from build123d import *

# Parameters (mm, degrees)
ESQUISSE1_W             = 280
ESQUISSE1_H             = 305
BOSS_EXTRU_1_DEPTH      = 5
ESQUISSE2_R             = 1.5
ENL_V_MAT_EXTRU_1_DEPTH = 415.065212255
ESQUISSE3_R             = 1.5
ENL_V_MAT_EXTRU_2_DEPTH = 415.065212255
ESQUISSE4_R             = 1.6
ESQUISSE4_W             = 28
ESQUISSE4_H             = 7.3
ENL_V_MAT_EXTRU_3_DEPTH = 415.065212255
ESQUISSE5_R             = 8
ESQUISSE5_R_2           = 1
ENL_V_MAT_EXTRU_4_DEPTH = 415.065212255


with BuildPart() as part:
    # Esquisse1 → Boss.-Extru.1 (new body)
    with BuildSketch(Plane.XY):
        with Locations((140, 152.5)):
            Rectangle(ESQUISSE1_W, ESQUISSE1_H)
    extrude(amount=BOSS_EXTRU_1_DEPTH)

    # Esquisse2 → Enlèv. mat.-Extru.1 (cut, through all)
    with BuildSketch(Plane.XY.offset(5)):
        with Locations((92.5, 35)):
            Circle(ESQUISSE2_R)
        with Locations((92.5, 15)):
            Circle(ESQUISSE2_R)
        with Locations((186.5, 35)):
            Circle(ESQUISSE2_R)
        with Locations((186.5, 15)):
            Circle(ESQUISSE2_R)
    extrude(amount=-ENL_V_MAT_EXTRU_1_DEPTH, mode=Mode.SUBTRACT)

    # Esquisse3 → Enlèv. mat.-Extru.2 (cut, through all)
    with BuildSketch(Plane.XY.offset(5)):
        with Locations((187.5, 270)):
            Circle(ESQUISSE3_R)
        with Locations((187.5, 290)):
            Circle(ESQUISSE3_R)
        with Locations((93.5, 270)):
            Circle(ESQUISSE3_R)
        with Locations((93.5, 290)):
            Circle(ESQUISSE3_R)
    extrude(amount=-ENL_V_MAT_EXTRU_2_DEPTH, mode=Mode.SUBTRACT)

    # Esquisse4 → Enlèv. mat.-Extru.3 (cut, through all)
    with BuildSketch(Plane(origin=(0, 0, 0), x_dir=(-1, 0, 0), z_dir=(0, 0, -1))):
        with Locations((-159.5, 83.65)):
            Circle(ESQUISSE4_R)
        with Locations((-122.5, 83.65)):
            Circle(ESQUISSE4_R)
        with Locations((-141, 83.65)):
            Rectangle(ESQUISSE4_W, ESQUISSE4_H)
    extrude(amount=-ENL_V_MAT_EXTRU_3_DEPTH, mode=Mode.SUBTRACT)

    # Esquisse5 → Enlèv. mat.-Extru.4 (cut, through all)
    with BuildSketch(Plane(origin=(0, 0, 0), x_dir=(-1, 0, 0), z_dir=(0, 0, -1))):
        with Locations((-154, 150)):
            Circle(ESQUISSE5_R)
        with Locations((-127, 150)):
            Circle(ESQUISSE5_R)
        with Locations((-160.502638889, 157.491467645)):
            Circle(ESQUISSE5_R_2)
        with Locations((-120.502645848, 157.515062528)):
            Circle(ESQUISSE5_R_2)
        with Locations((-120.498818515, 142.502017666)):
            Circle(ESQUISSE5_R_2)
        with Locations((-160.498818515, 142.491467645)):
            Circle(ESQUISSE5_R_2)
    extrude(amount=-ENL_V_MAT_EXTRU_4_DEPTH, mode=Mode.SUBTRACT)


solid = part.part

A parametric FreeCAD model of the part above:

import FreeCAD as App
import Part
import Sketcher
from FreeCAD import Vector
Q = App.Units.Quantity

doc = App.newDocument("Part")
params = doc.addObject("Spreadsheet::Sheet", "Params")
for row, (alias, value) in enumerate([
    ("sketch1_width", "280 mm"),
    ("sketch1_height", "305 mm"),
    ("pad1_length", "5 mm"),
    ("sketch2_diameter", "3 mm"),
    ("sketch3_diameter", "3 mm"),
    ("sketch4_diameter", "3.2 mm"),
    ("sketch4_width", "28 mm"),
    ("sketch4_height", "7.3 mm"),
    ("sketch5_diameter", "16 mm"),
    ("sketch5_diameter2", "2 mm"),
], start=1):
    params.set(f"A{row}", alias)
    params.set(f"B{row}", "=" + value)
    params.setAlias(f"B{row}", alias)

body = doc.addObject("PartDesign::Body", "Body")

sketch1 = doc.addObject("Sketcher::SketchObject", "Sketch")
body.addObject(sketch1)
sketch1.AttachmentSupport = (doc.XY_Plane, [""])
sketch1.MapMode = "FlatFace"
sketch1.addGeometry([
    Part.LineSegment(Vector(0, 305, 0), Vector(0, 0, 0)),
    Part.LineSegment(Vector(0, 0, 0), Vector(280, 0, 0)),
    Part.LineSegment(Vector(280, 0, 0), Vector(280, 305, 0)),
    Part.LineSegment(Vector(280, 305, 0), Vector(0, 305, 0)),
], False)
sketch1.addConstraint([
    Sketcher.Constraint("Coincident", 0, 2, 1, 1),
    Sketcher.Constraint("Coincident", 1, 2, 2, 1),
    Sketcher.Constraint("Coincident", 2, 2, 3, 1),
    Sketcher.Constraint("Coincident", 3, 2, 0, 1),
    Sketcher.Constraint("Vertical", 0),
    Sketcher.Constraint("Horizontal", 1),
    Sketcher.Constraint("Vertical", 2),
    Sketcher.Constraint("Horizontal", 3),
    Sketcher.Constraint("Coincident", 0, 2, -1, 1),
    Sketcher.Constraint("DistanceX", 1, 1, 1, 2, Q("280 mm")),
    Sketcher.Constraint("DistanceY", 0, 2, 0, 1, Q("305 mm")),
])
sketch1.setExpression("Constraints[9]", "Params.sketch1_width")
sketch1.setExpression("Constraints[10]", "Params.sketch1_height")
pad1 = doc.addObject("PartDesign::Pad", "Pad")
body.addObject(pad1)
pad1.Profile = sketch1
pad1.setExpression("Length", "Params.pad1_length")

sketch2 = doc.addObject("Sketcher::SketchObject", "Sketch001")
body.addObject(sketch2)
sketch2.AttachmentSupport = (doc.XY_Plane, [""])
sketch2.MapMode = "FlatFace"
sketch2.AttachmentOffset = App.Placement(Vector(0, 0, 5), App.Rotation())
sketch2.addGeometry([
    Part.Circle(Vector(92.5, 35, 0), Vector(0, 0, 1), 1.5),
    Part.Circle(Vector(92.5, 15, 0), Vector(0, 0, 1), 1.5),
    Part.Circle(Vector(186.5, 35, 0), Vector(0, 0, 1), 1.5),
    Part.Circle(Vector(186.5, 15, 0), Vector(0, 0, 1), 1.5),
], False)
sketch2.addConstraint([
    Sketcher.Constraint("Equal", 0, 1),
    Sketcher.Constraint("Equal", 1, 2),
    Sketcher.Constraint("Equal", 2, 3),
    Sketcher.Constraint("Horizontal", 0, 3, 2, 3),
    Sketcher.Constraint("Horizontal", 1, 3, 3, 3),
    Sketcher.Constraint("Vertical", 0, 3, 1, 3),
    Sketcher.Constraint("Vertical", 2, 3, 3, 3),
    Sketcher.Constraint("Diameter", 0, Q("3 mm")),
    Sketcher.Constraint("DistanceY", -1, 1, 0, 3, Q("35 mm")),
    Sketcher.Constraint("DistanceY", -1, 1, 1, 3, Q("15 mm")),
    Sketcher.Constraint("DistanceX", 0, 3, 2, 3, Q("94 mm")),
    Sketcher.Constraint("DistanceX", -1, 1, 0, 3, Q("92.5 mm")),
])
sketch2.setExpression("Constraints[7]", "Params.sketch2_diameter")
pocket1 = doc.addObject("PartDesign::Pocket", "Pocket")
body.addObject(pocket1)
pocket1.Profile = sketch2
pocket1.Type = "ThroughAll"

sketch3 = doc.addObject("Sketcher::SketchObject", "Sketch002")
body.addObject(sketch3)
sketch3.AttachmentSupport = (doc.XY_Plane, [""])
sketch3.MapMode = "FlatFace"
sketch3.AttachmentOffset = App.Placement(Vector(0, 0, 5), App.Rotation())
sketch3.addGeometry([
    Part.Circle(Vector(187.5, 270, 0), Vector(0, 0, 1), 1.5),
    Part.Circle(Vector(187.5, 290, 0), Vector(0, 0, 1), 1.5),
    Part.Circle(Vector(93.5, 270, 0), Vector(0, 0, 1), 1.5),
    Part.Circle(Vector(93.5, 290, 0), Vector(0, 0, 1), 1.5),
], False)
sketch3.addConstraint([
    Sketcher.Constraint("Equal", 0, 1),
    Sketcher.Constraint("Equal", 1, 2),
    Sketcher.Constraint("Equal", 2, 3),
    Sketcher.Constraint("Horizontal", 0, 3, 2, 3),
    Sketcher.Constraint("Horizontal", 1, 3, 3, 3),
    Sketcher.Constraint("Vertical", 0, 3, 1, 3),
    Sketcher.Constraint("Vertical", 2, 3, 3, 3),
    Sketcher.Constraint("Diameter", 0, Q("3 mm")),
    Sketcher.Constraint("DistanceY", -1, 1, 0, 3, Q("270 mm")),
    Sketcher.Constraint("DistanceY", -1, 1, 1, 3, Q("290 mm")),
    Sketcher.Constraint("DistanceX", 2, 3, 0, 3, Q("94 mm")),
    Sketcher.Constraint("DistanceX", -1, 1, 0, 3, Q("187.5 mm")),
])
sketch3.setExpression("Constraints[7]", "Params.sketch3_diameter")
pocket2 = doc.addObject("PartDesign::Pocket", "Pocket001")
body.addObject(pocket2)
pocket2.Profile = sketch3
pocket2.Type = "ThroughAll"

sketch4 = doc.addObject("Sketcher::SketchObject", "Sketch003")
body.addObject(sketch4)
sketch4.AttachmentSupport = (doc.XY_Plane, [""])
sketch4.MapMode = "FlatFace"
sketch4.addGeometry([
    Part.Circle(Vector(159.5, 83.7, 0), Vector(0, 0, 1), 1.6),
    Part.Circle(Vector(122.5, 83.7, 0), Vector(0, 0, 1), 1.6),
    Part.LineSegment(Vector(155, 87.3, 0), Vector(155, 80, 0)),
    Part.LineSegment(Vector(155, 80, 0), Vector(127, 80, 0)),
    Part.LineSegment(Vector(127, 80, 0), Vector(127, 87.3, 0)),
    Part.LineSegment(Vector(127, 87.3, 0), Vector(155, 87.3, 0)),
], False)
sketch4.addConstraint([
    Sketcher.Constraint("Coincident", 2, 2, 3, 1),
    Sketcher.Constraint("Coincident", 3, 2, 4, 1),
    Sketcher.Constraint("Coincident", 4, 2, 5, 1),
    Sketcher.Constraint("Coincident", 5, 2, 2, 1),
    Sketcher.Constraint("Vertical", 2),
    Sketcher.Constraint("Horizontal", 3),
    Sketcher.Constraint("Vertical", 4),
    Sketcher.Constraint("Horizontal", 5),
    Sketcher.Constraint("Equal", 0, 1),
    Sketcher.Constraint("Horizontal", 0, 3, 1, 3),
    Sketcher.Constraint("Diameter", 0, Q("3.2 mm")),
    Sketcher.Constraint("DistanceX", 3, 2, 3, 1, Q("28 mm")),
    Sketcher.Constraint("DistanceY", 2, 2, 2, 1, Q("7.3 mm")),
    Sketcher.Constraint("DistanceX", -1, 1, 2, 2, Q("155 mm")),
    Sketcher.Constraint("DistanceY", -1, 1, 2, 2, Q("80 mm")),
    Sketcher.Constraint("DistanceX", 1, 3, 0, 3, Q("37 mm")),
    Sketcher.Constraint("DistanceX", -1, 1, 0, 3, Q("159.5 mm")),
    Sketcher.Constraint("DistanceY", -1, 1, 0, 3, Q("83.65 mm")),
])
sketch4.setExpression("Constraints[10]", "Params.sketch4_diameter")
sketch4.setExpression("Constraints[11]", "Params.sketch4_width")
sketch4.setExpression("Constraints[12]", "Params.sketch4_height")
pocket3 = doc.addObject("PartDesign::Pocket", "Pocket002")
body.addObject(pocket3)
pocket3.Profile = sketch4
pocket3.Type = "ThroughAll"
pocket3.Reversed = True

sketch5 = doc.addObject("Sketcher::SketchObject", "Sketch004")
body.addObject(sketch5)
sketch5.AttachmentSupport = (doc.XY_Plane, [""])
sketch5.MapMode = "FlatFace"
sketch5.addGeometry([
    Part.Circle(Vector(154, 150, 0), Vector(0, 0, 1), 8),
    Part.Circle(Vector(127, 150, 0), Vector(0, 0, 1), 8),
    Part.Circle(Vector(160.5, 157.5, 0), Vector(0, 0, 1), 1),
    Part.Circle(Vector(120.5, 157.5, 0), Vector(0, 0, 1), 1),
    Part.Circle(Vector(120.5, 142.5, 0), Vector(0, 0, 1), 1),
    Part.Circle(Vector(160.5, 142.5, 0), Vector(0, 0, 1), 1),
], False)
sketch5.addConstraint([
    Sketcher.Constraint("Equal", 0, 1),
    Sketcher.Constraint("Equal", 2, 3),
    Sketcher.Constraint("Equal", 3, 4),
    Sketcher.Constraint("Equal", 4, 5),
    Sketcher.Constraint("Horizontal", 0, 3, 1, 3),
    Sketcher.Constraint("Diameter", 0, Q("16 mm")),
    Sketcher.Constraint("Diameter", 2, Q("2 mm")),
    Sketcher.Constraint("DistanceX", -1, 1, 0, 3, Q("154 mm")),
    Sketcher.Constraint("DistanceY", -1, 1, 0, 3, Q("150 mm")),
    Sketcher.Constraint("DistanceX", -1, 1, 1, 3, Q("127 mm")),
    Sketcher.Constraint("DistanceY", 5, 3, 2, 3, Q("15 mm")),
    Sketcher.Constraint("DistanceX", 4, 3, 5, 3, Q("40 mm")),
    Sketcher.Constraint("DistanceX", -1, 1, 2, 3, Q("160.502639 mm")),
    Sketcher.Constraint("DistanceX", -1, 1, 4, 3, Q("120.498819 mm")),
    Sketcher.Constraint("DistanceY", 4, 3, 2, 3, Q("14.98945 mm")),
    Sketcher.Constraint("DistanceY", -1, 1, 2, 3, Q("157.491468 mm")),
    Sketcher.Constraint("DistanceX", -1, 1, 3, 3, Q("120.502646 mm")),
    Sketcher.Constraint("DistanceY", -1, 1, 3, 3, Q("157.515063 mm")),
])
sketch5.setExpression("Constraints[5]", "Params.sketch5_diameter")
sketch5.setExpression("Constraints[6]", "Params.sketch5_diameter2")
pocket4 = doc.addObject("PartDesign::Pocket", "Pocket003")
body.addObject(pocket4)
pocket4.Profile = sketch5
pocket4.Type = "ThroughAll"
pocket4.Reversed = True

doc.recompute()
